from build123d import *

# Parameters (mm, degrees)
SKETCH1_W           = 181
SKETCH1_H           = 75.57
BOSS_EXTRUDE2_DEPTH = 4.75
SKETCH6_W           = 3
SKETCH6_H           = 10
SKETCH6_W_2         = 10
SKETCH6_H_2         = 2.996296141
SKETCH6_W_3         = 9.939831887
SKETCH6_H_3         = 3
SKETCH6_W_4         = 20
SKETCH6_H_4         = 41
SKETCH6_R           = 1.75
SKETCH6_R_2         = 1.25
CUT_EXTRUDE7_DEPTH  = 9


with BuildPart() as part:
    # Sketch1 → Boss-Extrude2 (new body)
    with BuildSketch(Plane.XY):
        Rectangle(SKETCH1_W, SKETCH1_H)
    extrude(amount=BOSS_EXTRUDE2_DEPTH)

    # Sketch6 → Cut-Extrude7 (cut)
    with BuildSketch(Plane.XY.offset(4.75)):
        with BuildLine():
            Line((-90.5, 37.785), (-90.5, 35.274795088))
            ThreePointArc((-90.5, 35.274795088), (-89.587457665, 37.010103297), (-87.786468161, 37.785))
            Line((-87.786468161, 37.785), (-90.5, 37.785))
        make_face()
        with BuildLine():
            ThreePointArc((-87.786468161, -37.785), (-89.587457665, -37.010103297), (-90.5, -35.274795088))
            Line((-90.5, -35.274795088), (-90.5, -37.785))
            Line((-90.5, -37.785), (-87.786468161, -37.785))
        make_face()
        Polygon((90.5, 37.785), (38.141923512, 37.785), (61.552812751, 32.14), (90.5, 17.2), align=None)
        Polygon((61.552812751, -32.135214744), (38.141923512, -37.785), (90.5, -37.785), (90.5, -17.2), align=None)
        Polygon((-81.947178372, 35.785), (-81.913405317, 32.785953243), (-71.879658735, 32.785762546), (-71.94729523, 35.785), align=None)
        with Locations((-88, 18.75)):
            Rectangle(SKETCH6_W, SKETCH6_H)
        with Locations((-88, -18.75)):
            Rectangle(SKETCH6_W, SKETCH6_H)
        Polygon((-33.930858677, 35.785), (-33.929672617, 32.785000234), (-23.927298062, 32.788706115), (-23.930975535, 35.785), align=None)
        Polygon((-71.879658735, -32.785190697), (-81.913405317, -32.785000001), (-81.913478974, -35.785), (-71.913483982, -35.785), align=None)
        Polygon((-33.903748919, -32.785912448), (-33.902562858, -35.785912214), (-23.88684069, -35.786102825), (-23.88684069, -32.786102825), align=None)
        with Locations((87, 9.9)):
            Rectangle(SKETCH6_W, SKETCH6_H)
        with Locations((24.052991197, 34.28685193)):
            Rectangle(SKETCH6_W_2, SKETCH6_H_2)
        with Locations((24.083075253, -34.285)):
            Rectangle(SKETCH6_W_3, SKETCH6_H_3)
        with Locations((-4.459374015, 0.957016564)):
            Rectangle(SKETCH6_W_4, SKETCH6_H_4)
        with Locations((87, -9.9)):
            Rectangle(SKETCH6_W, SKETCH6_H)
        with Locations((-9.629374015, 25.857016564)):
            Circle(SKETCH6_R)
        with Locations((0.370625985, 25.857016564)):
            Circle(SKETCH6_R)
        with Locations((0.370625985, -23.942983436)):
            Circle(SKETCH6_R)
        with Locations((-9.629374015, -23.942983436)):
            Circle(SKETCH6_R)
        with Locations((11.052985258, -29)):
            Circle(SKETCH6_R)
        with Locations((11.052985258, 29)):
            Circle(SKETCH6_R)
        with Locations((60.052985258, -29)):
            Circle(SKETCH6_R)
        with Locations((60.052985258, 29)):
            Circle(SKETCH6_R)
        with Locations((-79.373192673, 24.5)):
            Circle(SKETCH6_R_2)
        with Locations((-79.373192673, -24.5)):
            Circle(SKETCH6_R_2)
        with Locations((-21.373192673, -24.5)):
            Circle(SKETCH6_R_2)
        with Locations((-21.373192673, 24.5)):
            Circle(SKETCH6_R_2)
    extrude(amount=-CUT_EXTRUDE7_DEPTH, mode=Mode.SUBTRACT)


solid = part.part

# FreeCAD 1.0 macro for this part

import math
import FreeCAD as App
import Part
import Sketcher
Q = App.Units.Quantity

doc = App.newDocument("Part")
params = doc.addObject("Spreadsheet::Sheet", "Params")
for row, (alias, value) in enumerate([
    ("sketch1_width", "181 mm"),
    ("sketch1_height", "75.57 mm"),
    ("pad1_length", "4.75 mm"),
    ("sketch2_diameter", "3.5 mm"),
    ("sketch2_diameter2", "2.5 mm"),
    ("sketch2_width", "3 mm"),
    ("sketch2_width2", "10 mm"),
    ("sketch2_width3", "20 mm"),
    ("pocket1_length", "9 mm"),
], start=1):
    params.set(f"A{row}", alias)
    params.set(f"B{row}", "=" + value)
    params.setAlias(f"B{row}", alias)

body = doc.addObject("PartDesign::Body", "Body")

# Sketch on XY plane
sketch1 = body.newObject("Sketcher::SketchObject", "Sketch")
sketch1.AttachmentSupport = (doc.getObject("XY_Plane"), [""])
sketch1.MapMode = "FlatFace"
sketch1.addGeometry([
    Part.LineSegment(App.Vector(-90, 38, 0), App.Vector(-90, -38, 0)),
    Part.LineSegment(App.Vector(-90, -38, 0), App.Vector(90, -38, 0)),
    Part.LineSegment(App.Vector(90, -38, 0), App.Vector(90, 38, 0)),
    Part.LineSegment(App.Vector(90, 38, 0), App.Vector(-90, 38, 0)),
], False)
sketch1.addConstraint([
    Sketcher.Constraint("Coincident", 0, 2, 1, 1),
    Sketcher.Constraint("Coincident", 1, 2, 2, 1),
    Sketcher.Constraint("Coincident", 2, 2, 3, 1),
    Sketcher.Constraint("Coincident", 3, 2, 0, 1),
    Sketcher.Constraint("Vertical", 0),
    Sketcher.Constraint("Horizontal", 1),
    Sketcher.Constraint("Vertical", 2),
    Sketcher.Constraint("Horizontal", 3),
    Sketcher.Constraint("Symmetric", 0, 2, 2, 2, -1, 1),
    Sketcher.Constraint("DistanceX", 1, 1, 1, 2, Q("181 mm")),
    Sketcher.Constraint("DistanceY", 0, 2, 0, 1, Q("75.57 mm")),
])
sketch1.setExpression("Constraints[9]", "Params.sketch1_width")
sketch1.setExpression("Constraints[10]", "Params.sketch1_height")
pad1 = body.newObject("PartDesign::Pad", "Pad")
pad1.Profile = sketch1
pad1.setExpression("Length", "Params.pad1_length")

# Sketch on XY plane
sketch2 = body.newObject("Sketcher::SketchObject", "Sketch001")
sketch2.AttachmentSupport = (doc.getObject("XY_Plane"), [""])
sketch2.MapMode = "FlatFace"
sketch2.AttachmentOffset = App.Placement(App.Vector(0, 0, 4.75), App.Rotation())
sketch2.addGeometry([
    Part.LineSegment(App.Vector(-90.5, 37.785, 0), App.Vector(-90.5, 35.274795, 0)),  # 0
    Part.ArcOfCircle(Part.Circle(App.Vector(-87.592272, 34.853308, 0), App.Vector(0, 0, 1), 2.938117), math.radians(93.789747), math.radians(171.752182)),  # 1
    Part.LineSegment(App.Vector(-87.786468, 37.785, 0), App.Vector(-90.5, 37.785, 0)),  # 2
    Part.ArcOfCircle(Part.Circle(App.Vector(-87.592272, -34.853308, 0), App.Vector(0, 0, 1), 2.938117), math.radians(-171.752182), math.radians(-93.789747)),  # 3
    Part.LineSegment(App.Vector(-90.5, -35.274795, 0), App.Vector(-90.5, -37.785, 0)),  # 4
    Part.LineSegment(App.Vector(-90.5, -37.785, 0), App.Vector(-87.786468, -37.785, 0)),  # 5
    Part.LineSegment(App.Vector(90.5, 37.785, 0), App.Vector(38.141924, 37.785, 0)),  # 6
    Part.LineSegment(App.Vector(38.141924, 37.785, 0), App.Vector(61.552813, 32.14, 0)),  # 7
    Part.LineSegment(App.Vector(61.552813, 32.14, 0), App.Vector(90.5, 17.2, 0)),  # 8
    Part.LineSegment(App.Vector(90.5, 17.2, 0), App.Vector(90.5, 37.785, 0)),  # 9
    Part.LineSegment(App.Vector(61.552813, -32.135215, 0), App.Vector(38.141924, -37.785, 0)),  # 10
    Part.LineSegment(App.Vector(38.141924, -37.785, 0), App.Vector(90.5, -37.785, 0)),  # 11
    Part.LineSegment(App.Vector(90.5, -37.785, 0), App.Vector(90.5, -17.2, 0)),  # 12
    Part.LineSegment(App.Vector(90.5, -17.2, 0), App.Vector(61.552813, -32.135215, 0)),  # 13
    Part.LineSegment(App.Vector(-81.947178, 35.785, 0), App.Vector(-81.913405, 32.785953, 0)),  # 14
    Part.LineSegment(App.Vector(-81.913405, 32.785953, 0), App.Vector(-71.879659, 32.785763, 0)),  # 15
    Part.LineSegment(App.Vector(-71.879659, 32.785763, 0), App.Vector(-71.947295, 35.785, 0)),  # 16
    Part.LineSegment(App.Vector(-71.947295, 35.785, 0), App.Vector(-81.947178, 35.785, 0)),  # 17
    Part.LineSegment(App.Vector(-89.5, 23.75, 0), App.Vector(-89.5, 13.75, 0)),  # 18
    Part.LineSegment(App.Vector(-89.5, 13.75, 0), App.Vector(-86.5, 13.75, 0)),  # 19
    Part.LineSegment(App.Vector(-86.5, 13.75, 0), App.Vector(-86.5, 23.75, 0)),  # 20
    Part.LineSegment(App.Vector(-86.5, 23.75, 0), App.Vector(-89.5, 23.75, 0)),  # 21
    Part.LineSegment(App.Vector(-89.5, -13.75, 0), App.Vector(-89.5, -23.75, 0)),  # 22
    Part.LineSegment(App.Vector(-89.5, -23.75, 0), App.Vector(-86.5, -23.75, 0)),  # 23
    Part.LineSegment(App.Vector(-86.5, -23.75, 0), App.Vector(-86.5, -13.75, 0)),  # 24
    Part.LineSegment(App.Vector(-86.5, -13.75, 0), App.Vector(-89.5, -13.75, 0)),  # 25
    Part.LineSegment(App.Vector(-33.930859, 35.785, 0), App.Vector(-33.929673, 32.785, 0)),  # 26
    Part.LineSegment(App.Vector(-33.929673, 32.785, 0), App.Vector(-23.927298, 32.788706, 0)),  # 27
    Part.LineSegment(App.Vector(-23.927298, 32.788706, 0), App.Vector(-23.930976, 35.785, 0)),  # 28
    Part.LineSegment(App.Vector(-23.930976, 35.785, 0), App.Vector(-33.930859, 35.785, 0)),  # 29
    Part.LineSegment(App.Vector(-71.879659, -32.785191, 0), App.Vector(-81.913405, -32.785, 0)),  # 30
    Part.LineSegment(App.Vector(-81.913405, -32.785, 0), App.Vector(-81.913479, -35.785, 0)),  # 31
    Part.LineSegment(App.Vector(-81.913479, -35.785, 0), App.Vector(-71.913484, -35.785, 0)),  # 32
    Part.LineSegment(App.Vector(-71.913484, -35.785, 0), App.Vector(-71.879659, -32.785191, 0)),  # 33
    Part.LineSegment(App.Vector(-33.903749, -32.785912, 0), App.Vector(-33.902563, -35.785912, 0)),  # 34
    Part.LineSegment(App.Vector(-33.902563, -35.785912, 0), App.Vector(-23.886841, -35.786103, 0)),  # 35
    Part.LineSegment(App.Vector(-23.886841, -35.786103, 0), App.Vector(-23.886841, -32.786103, 0)),  # 36
    Part.LineSegment(App.Vector(-23.886841, -32.786103, 0), App.Vector(-33.903749, -32.785912, 0)),  # 37
    Part.LineSegment(App.Vector(85.5, 14.9, 0), App.Vector(85.5, 4.9, 0)),  # 38
    Part.LineSegment(App.Vector(85.5, 4.9, 0), App.Vector(88.5, 4.9, 0)),  # 39
    Part.LineSegment(App.Vector(88.5, 4.9, 0), App.Vector(88.5, 14.9, 0)),  # 40
    Part.LineSegment(App.Vector(88.5, 14.9, 0), App.Vector(85.5, 14.9, 0)),  # 41
    Part.LineSegment(App.Vector(19.052991, 35.785, 0), App.Vector(19.052991, 32.788704, 0)),  # 42
    Part.LineSegment(App.Vector(19.052991, 32.788704, 0), App.Vector(29.052991, 32.788704, 0)),  # 43
    Part.LineSegment(App.Vector(29.052991, 32.788704, 0), App.Vector(29.052991, 35.785, 0)),  # 44
    Part.LineSegment(App.Vector(29.052991, 35.785, 0), App.Vector(19.052991, 35.785, 0)),  # 45
    Part.LineSegment(App.Vector(19.113159, -32.785, 0), App.Vector(19.113159, -35.785, 0)),  # 46
    Part.LineSegment(App.Vector(19.113159, -35.785, 0), App.Vector(29.052991, -35.785, 0)),  # 47
    Part.LineSegment(App.Vector(29.052991, -35.785, 0), App.Vector(29.052991, -32.785, 0)),  # 48
    Part.LineSegment(App.Vector(29.052991, -32.785, 0), App.Vector(19.113159, -32.785, 0)),  # 49
    Part.LineSegment(App.Vector(-14.459374, 21.457017, 0), App.Vector(-14.459374, -19.542983, 0)),  # 50
    Part.LineSegment(App.Vector(-14.459374, -19.542983, 0), App.Vector(5.540626, -19.542983, 0)),  # 51
    Part.LineSegment(App.Vector(5.540626, -19.542983, 0), App.Vector(5.540626, 21.457017, 0)),  # 52
    Part.LineSegment(App.Vector(5.540626, 21.457017, 0), App.Vector(-14.459374, 21.457017, 0)),  # 53
    Part.LineSegment(App.Vector(85.5, -4.9, 0), App.Vector(85.5, -14.9, 0)),  # 54
    Part.LineSegment(App.Vector(85.5, -14.9, 0), App.Vector(88.5, -14.9, 0)),  # 55
    Part.LineSegment(App.Vector(88.5, -14.9, 0), App.Vector(88.5, -4.9, 0)),  # 56
    Part.LineSegment(App.Vector(88.5, -4.9, 0), App.Vector(85.5, -4.9, 0)),  # 57
    Part.Circle(App.Vector(-9.629374, 25.857017, 0), App.Vector(0, 0, 1), 1.75),  # 58
    Part.Circle(App.Vector(0.370626, 25.857017, 0), App.Vector(0, 0, 1), 1.75),  # 59
    Part.Circle(App.Vector(0.370626, -23.942983, 0), App.Vector(0, 0, 1), 1.75),  # 60
    Part.Circle(App.Vector(-9.629374, -23.942983, 0), App.Vector(0, 0, 1), 1.75),  # 61
    Part.Circle(App.Vector(11.052985, -29, 0), App.Vector(0, 0, 1), 1.75),  # 62
    Part.Circle(App.Vector(11.052985, 29, 0), App.Vector(0, 0, 1), 1.75),  # 63
    Part.Circle(App.Vector(60.052985, -29, 0), App.Vector(0, 0, 1), 1.75),  # 64
    Part.Circle(App.Vector(60.052985, 29, 0), App.Vector(0, 0, 1), 1.75),  # 65
    Part.Circle(App.Vector(-79.373193, 24.5, 0), App.Vector(0, 0, 1), 1.25),  # 66
    Part.Circle(App.Vector(-79.373193, -24.5, 0), App.Vector(0, 0, 1), 1.25),  # 67
    Part.Circle(App.Vector(-21.373193, -24.5, 0), App.Vector(0, 0, 1), 1.25),  # 68
    Part.Circle(App.Vector(-21.373193, 24.5, 0), App.Vector(0, 0, 1), 1.25),  # 69
], False)
sketch2.addConstraint([
    Sketcher.Constraint("Coincident", 0, 2, 1, 2),
    Sketcher.Constraint("Coincident", 1, 1, 2, 1),
    Sketcher.Constraint("Coincident", 2, 2, 0, 1),
    Sketcher.Constraint("Coincident", 3, 1, 4, 1),
    Sketcher.Constraint("Coincident", 4, 2, 5, 1),
    Sketcher.Constraint("Coincident", 5, 2, 3, 2),
    Sketcher.Constraint("Coincident", 6, 2, 7, 1),
    Sketcher.Constraint("Coincident", 7, 2, 8, 1),
    Sketcher.Constraint("Coincident", 8, 2, 9, 1),
    Sketcher.Constraint("Coincident", 9, 2, 6, 1),
    Sketcher.Constraint("Coincident", 10, 2, 11, 1),
    Sketcher.Constraint("Coincident", 11, 2, 12, 1),
    Sketcher.Constraint("Coincident", 12, 2, 13, 1),
    Sketcher.Constraint("Coincident", 13, 2, 10, 1),
    Sketcher.Constraint("Coincident", 14, 2, 15, 1),
    Sketcher.Constraint("Coincident", 15, 2, 16, 1),
    Sketcher.Constraint("Coincident", 16, 2, 17, 1),
    Sketcher.Constraint("Coincident", 17, 2, 14, 1),
    Sketcher.Constraint("Coincident", 18, 2, 19, 1),
    Sketcher.Constraint("Coincident", 19, 2, 20, 1),
    Sketcher.Constraint("Coincident", 20, 2, 21, 1),
    Sketcher.Constraint("Coincident", 21, 2, 18, 1),
    Sketcher.Constraint("Coincident", 22, 2, 23, 1),
    Sketcher.Constraint("Coincident", 23, 2, 24, 1),
    Sketcher.Constraint("Coincident", 24, 2, 25, 1),
    Sketcher.Constraint("Coincident", 25, 2, 22, 1),
    Sketcher.Constraint("Coincident", 26, 2, 27, 1),
    Sketcher.Constraint("Coincident", 27, 2, 28, 1),
    Sketcher.Constraint("Coincident", 28, 2, 29, 1),
    Sketcher.Constraint("Coincident", 29, 2, 26, 1),
    Sketcher.Constraint("Coincident", 30, 2, 31, 1),
    Sketcher.Constraint("Coincident", 31, 2, 32, 1),
    Sketcher.Constraint("Coincident", 32, 2, 33, 1),
    Sketcher.Constraint("Coincident", 33, 2, 30, 1),
    Sketcher.Constraint("Coincident", 34, 2, 35, 1),
    Sketcher.Constraint("Coincident", 35, 2, 36, 1),
    Sketcher.Constraint("Coincident", 36, 2, 37, 1),
    Sketcher.Constraint("Coincident", 37, 2, 34, 1),
    Sketcher.Constraint("Coincident", 38, 2, 39, 1),
    Sketcher.Constraint("Coincident", 39, 2, 40, 1),
    Sketcher.Constraint("Coincident", 40, 2, 41, 1),
    Sketcher.Constraint("Coincident", 41, 2, 38, 1),
    Sketcher.Constraint("Coincident", 42, 2, 43, 1),
    Sketcher.Constraint("Coincident", 43, 2, 44, 1),
    Sketcher.Constraint("Coincident", 44, 2, 45, 1),
    Sketcher.Constraint("Coincident", 45, 2, 42, 1),
    Sketcher.Constraint("Coincident", 46, 2, 47, 1),
    Sketcher.Constraint("Coincident", 47, 2, 48, 1),
    Sketcher.Constraint("Coincident", 48, 2, 49, 1),
    Sketcher.Constraint("Coincident", 49, 2, 46, 1),
    Sketcher.Constraint("Coincident", 50, 2, 51, 1),
    Sketcher.Constraint("Coincident", 51, 2, 52, 1),
    Sketcher.Constraint("Coincident", 52, 2, 53, 1),
    Sketcher.Constraint("Coincident", 53, 2, 50, 1),
    Sketcher.Constraint("Coincident", 54, 2, 55, 1),
    Sketcher.Constraint("Coincident", 55, 2, 56, 1),
    Sketcher.Constraint("Coincident", 56, 2, 57, 1),
    Sketcher.Constraint("Coincident", 57, 2, 54, 1),
    Sketcher.Constraint("Vertical", 0),
    Sketcher.Constraint("Horizontal", 2),
    Sketcher.Constraint("Vertical", 4),
    Sketcher.Constraint("Horizontal", 5),
    Sketcher.Constraint("Horizontal", 6),
    Sketcher.Constraint("Vertical", 9),
    Sketcher.Constraint("Horizontal", 11),
    Sketcher.Constraint("Vertical", 12),
    Sketcher.Constraint("Horizontal", 17),
    Sketcher.Constraint("Vertical", 18),
    Sketcher.Constraint("Horizontal", 19),
    Sketcher.Constraint("Vertical", 20),
    Sketcher.Constraint("Horizontal", 21),
    Sketcher.Constraint("Vertical", 22),
    Sketcher.Constraint("Horizontal", 23),
    Sketcher.Constraint("Vertical", 24),
    Sketcher.Constraint("Horizontal", 25),
    Sketcher.Constraint("Horizontal", 29),
    Sketcher.Constraint("Horizontal", 32),
    Sketcher.Constraint("Vertical", 36),
    Sketcher.Constraint("Vertical", 38),
    Sketcher.Constraint("Horizontal", 39),
    Sketcher.Constraint("Vertical", 40),
    Sketcher.Constraint("Horizontal", 41),
    Sketcher.Constraint("Vertical", 42),
    Sketcher.Constraint("Horizontal", 43),
    Sketcher.Constraint("Vertical", 44),
    Sketcher.Constraint("Horizontal", 45),
    Sketcher.Constraint("Vertical", 46),
    Sketcher.Constraint("Horizontal", 47),
    Sketcher.Constraint("Vertical", 48),
    Sketcher.Constraint("Horizontal", 49),
    Sketcher.Constraint("Vertical", 50),
    Sketcher.Constraint("Horizontal", 51),
    Sketcher.Constraint("Vertical", 52),
    Sketcher.Constraint("Horizontal", 53),
    Sketcher.Constraint("Vertical", 54),
    Sketcher.Constraint("Horizontal", 55),
    Sketcher.Constraint("Vertical", 56),
    Sketcher.Constraint("Horizontal", 57),
    Sketcher.Constraint("Equal", 1, 3),
    Sketcher.Constraint("Equal", 58, 59),
    Sketcher.Constraint("Equal", 59, 60),
    Sketcher.Constraint("Equal", 60, 61),
    Sketcher.Constraint("Equal", 61, 62),
    Sketcher.Constraint("Equal", 62, 63),
    Sketcher.Constraint("Equal", 63, 64),
    Sketcher.Constraint("Equal", 64, 65),
    Sketcher.Constraint("Equal", 66, 67),
    Sketcher.Constraint("Equal", 67, 68),
    Sketcher.Constraint("Equal", 68, 69),
    Sketcher.Constraint("Symmetric", 4, 2, 9, 2, -1, 1),
    Sketcher.Constraint("Symmetric", 2, 2, 11, 2, -1, 1),
    Sketcher.Constraint("Symmetric", 2, 2, 9, 2, -2),
    Sketcher.Constraint("Symmetric", 1, 3, 3, 3, -1),
    Sketcher.Constraint("Symmetric", 62, 3, 63, 3, -1),
    Sketcher.Constraint("Symmetric", 64, 3, 65, 3, -1),
    Sketcher.Constraint("Symmetric", 66, 3, 67, 3, -1),
    Sketcher.Constraint("Symmetric", 68, 3, 69, 3, -1),
    Sketcher.Constraint("Symmetric", 21, 2, 22, 2, -1),
    Sketcher.Constraint("Symmetric", 19, 2, 24, 2, -1),
    Sketcher.Constraint("Symmetric", 44, 2, 47, 2, -1),
    Sketcher.Constraint("Symmetric", 41, 2, 54, 2, -1),
    Sketcher.Constraint("Symmetric", 39, 2, 56, 2, -1),
    Sketcher.Constraint("Parallel", 15, 30),
    Sketcher.Constraint("Parallel", 26, 34),
    Sketcher.Constraint("Parallel", 30, 35),
    Sketcher.Constraint("Parallel", 35, 37),
    Sketcher.Constraint("Horizontal", 58, 3, 59, 3),
    Sketcher.Constraint("Horizontal", 60, 3, 61, 3),
    Sketcher.Constraint("Horizontal", 62, 3, 64, 3),
    Sketcher.Constraint("Horizontal", 67, 3, 68, 3),
    Sketcher.Constraint("Horizontal", 17, 2, 28, 2),
    Sketcher.Constraint("Horizontal", 29, 2, 44, 2),
    Sketcher.Constraint("Horizontal", 32, 2, 46, 2),
    Sketcher.Constraint("Horizontal", 30, 2, 48, 2),
    Sketcher.Constraint("Vertical", 59, 3, 60, 3),
    Sketcher.Constraint("Vertical", 58, 3, 61, 3),
    Sketcher.Constraint("Vertical", 6, 2, 10, 2),
    Sketcher.Constraint("Vertical", 7, 2, 13, 2),
    Sketcher.Constraint("Vertical", 14, 2, 30, 2),
    Sketcher.Constraint("Vertical", 15, 2, 33, 2),
    Sketcher.Constraint("Equal", 17, 29),
    Sketcher.Constraint("Equal", 25, 39),
    Sketcher.Constraint("Equal", 9, 12),
    Sketcher.Constraint("Equal", 45, 18),
    Sketcher.Constraint("Equal", 57, 36),
    Sketcher.Constraint("Equal", 24, 38),
    Sketcher.Constraint("Equal", 36, 46),
    Sketcher.Constraint("Equal", 16, 26),
    Sketcher.Constraint("Equal", 26, 31),
    Sketcher.Constraint("Equal", 31, 33),
    Sketcher.Constraint("Diameter", 58, Q("3.5 mm")),
    Sketcher.Constraint("Diameter", 66, Q("2.5 mm")),
    Sketcher.Constraint("DistanceX", 19, 1, 19, 2, Q("3 mm")),
    Sketcher.Constraint("DistanceX", 43, 1, 43, 2, Q("10 mm")),
    Sketcher.Constraint("DistanceX", 51, 1, 51, 2, Q("20 mm")),
    Sketcher.Constraint("DistanceY", 50, 2, 50, 1, Q("41 mm")),
    Sketcher.Constraint("DistanceY", 62, 3, -1, 1, Q("29 mm")),
    Sketcher.Constraint("DistanceY", -1, 1, 66, 3, Q("24.5 mm")),
    Sketcher.Constraint("DistanceX", 0, 2, -1, 1, Q("90.5 mm")),
    Sketcher.Constraint("DistanceY", -1, 1, 8, 2, Q("17.2 mm")),
    Sketcher.Constraint("DistanceX", 18, 2, -1, 1, Q("89.5 mm")),
    Sketcher.Constraint("DistanceX", -1, 1, 38, 2, Q("85.5 mm")),
    Sketcher.Constraint("DistanceY", -1, 1, 38, 2, Q("4.9 mm")),
    Sketcher.Constraint("DistanceY", 9, 1, 9, 2, Q("20.585 mm")),
    Sketcher.Constraint("DistanceY", -1, 1, 7, 2, Q("32.14 mm")),
    Sketcher.Constraint("DistanceY", -1, 1, 18, 2, Q("13.75 mm")),
    Sketcher.Constraint("Distance", 13, Q("32.572999 mm")),
    Sketcher.Constraint("DistanceY", -1, 1, 16, 2, Q("35.785 mm")),
    Sketcher.Constraint("Radius", 1, Q("2.938117 mm")),
    Sketcher.Constraint("DistanceX", 2, 2, 2, 1, Q("2.713532 mm")),
    Sketcher.Constraint("DistanceX", 47, 1, 47, 2, Q("9.939832 mm")),
    Sketcher.Constraint("DistanceX", 27, 2, -1, 1, Q("23.927298 mm")),
    Sketcher.Constraint("Distance", 37, Q("10.016908 mm")),
    Sketcher.Constraint("DistanceX", 6, 2, 6, 1, Q("52.358076 mm")),
    Sketcher.Constraint("DistanceX", 17, 2, 17, 1, Q("9.999883 mm")),
    Sketcher.Constraint("DistanceX", 32, 1, 32, 2, Q("9.999995 mm")),
    Sketcher.Constraint("DistanceY", 0, 2, 0, 1, Q("2.510205 mm")),
    Sketcher.Constraint("DistanceY", 42, 2, 42, 1, Q("2.996296 mm")),
    Sketcher.Constraint("DistanceX", 15, 2, -1, 1, Q("71.879659 mm")),
    Sketcher.Constraint("DistanceX", 17, 2, -1, 1, Q("81.947178 mm")),
    Sketcher.Constraint("DistanceX", 29, 2, -1, 1, Q("33.930859 mm")),
    Sketcher.Constraint("DistanceX", 31, 2, -1, 1, Q("81.913479 mm")),
    Sketcher.Constraint("DistanceX", 35, 2, -1, 1, Q("23.886841 mm")),
    Sketcher.Constraint("DistanceX", -1, 1, 42, 2, Q("19.052991 mm")),
    Sketcher.Constraint("Distance", 7, Q("24.081855 mm")),
    Sketcher.Constraint("Distance", 14, Q("2.999237 mm")),
    Sketcher.Constraint("Distance", 27, Q("10.002375 mm")),
    Sketcher.Constraint("Distance", 28, Q("2.996296 mm")),
    Sketcher.Constraint("DistanceX", 58, 3, -1, 1, Q("9.629374 mm")),
    Sketcher.Constraint("DistanceY", -1, 1, 58, 3, Q("25.857017 mm")),
    Sketcher.Constraint("DistanceX", -1, 1, 59, 3, Q("0.370626 mm")),
    Sketcher.Constraint("DistanceY", 60, 3, -1, 1, Q("23.942983 mm")),
    Sketcher.Constraint("DistanceX", -1, 1, 62, 3, Q("11.052985 mm")),
    Sketcher.Constraint("DistanceX", -1, 1, 64, 3, Q("60.052985 mm")),
    Sketcher.Constraint("DistanceX", 66, 3, -1, 1, Q("79.373193 mm")),
    Sketcher.Constraint("DistanceX", 68, 3, -1, 1, Q("21.373193 mm")),
    Sketcher.Constraint("DistanceY", 34, 2, -1, 1, Q("35.785912 mm")),
    Sketcher.Constraint("DistanceX", 50, 2, -1, 1, Q("14.459374 mm")),
    Sketcher.Constraint("DistanceY", 50, 2, -1, 1, Q("19.542983 mm")),
])
sketch2.setExpression("Constraints[150]", "Params.sketch2_diameter")
sketch2.setExpression("Constraints[151]", "Params.sketch2_diameter2")
sketch2.setExpression("Constraints[152]", "Params.sketch2_width")
sketch2.setExpression("Constraints[153]", "Params.sketch2_width2")
sketch2.setExpression("Constraints[154]", "Params.sketch2_width3")
pocket1 = body.newObject("PartDesign::Pocket", "Pocket")
pocket1.Profile = sketch2
pocket1.setExpression("Length", "Params.pocket1_length")

doc.recompute()
